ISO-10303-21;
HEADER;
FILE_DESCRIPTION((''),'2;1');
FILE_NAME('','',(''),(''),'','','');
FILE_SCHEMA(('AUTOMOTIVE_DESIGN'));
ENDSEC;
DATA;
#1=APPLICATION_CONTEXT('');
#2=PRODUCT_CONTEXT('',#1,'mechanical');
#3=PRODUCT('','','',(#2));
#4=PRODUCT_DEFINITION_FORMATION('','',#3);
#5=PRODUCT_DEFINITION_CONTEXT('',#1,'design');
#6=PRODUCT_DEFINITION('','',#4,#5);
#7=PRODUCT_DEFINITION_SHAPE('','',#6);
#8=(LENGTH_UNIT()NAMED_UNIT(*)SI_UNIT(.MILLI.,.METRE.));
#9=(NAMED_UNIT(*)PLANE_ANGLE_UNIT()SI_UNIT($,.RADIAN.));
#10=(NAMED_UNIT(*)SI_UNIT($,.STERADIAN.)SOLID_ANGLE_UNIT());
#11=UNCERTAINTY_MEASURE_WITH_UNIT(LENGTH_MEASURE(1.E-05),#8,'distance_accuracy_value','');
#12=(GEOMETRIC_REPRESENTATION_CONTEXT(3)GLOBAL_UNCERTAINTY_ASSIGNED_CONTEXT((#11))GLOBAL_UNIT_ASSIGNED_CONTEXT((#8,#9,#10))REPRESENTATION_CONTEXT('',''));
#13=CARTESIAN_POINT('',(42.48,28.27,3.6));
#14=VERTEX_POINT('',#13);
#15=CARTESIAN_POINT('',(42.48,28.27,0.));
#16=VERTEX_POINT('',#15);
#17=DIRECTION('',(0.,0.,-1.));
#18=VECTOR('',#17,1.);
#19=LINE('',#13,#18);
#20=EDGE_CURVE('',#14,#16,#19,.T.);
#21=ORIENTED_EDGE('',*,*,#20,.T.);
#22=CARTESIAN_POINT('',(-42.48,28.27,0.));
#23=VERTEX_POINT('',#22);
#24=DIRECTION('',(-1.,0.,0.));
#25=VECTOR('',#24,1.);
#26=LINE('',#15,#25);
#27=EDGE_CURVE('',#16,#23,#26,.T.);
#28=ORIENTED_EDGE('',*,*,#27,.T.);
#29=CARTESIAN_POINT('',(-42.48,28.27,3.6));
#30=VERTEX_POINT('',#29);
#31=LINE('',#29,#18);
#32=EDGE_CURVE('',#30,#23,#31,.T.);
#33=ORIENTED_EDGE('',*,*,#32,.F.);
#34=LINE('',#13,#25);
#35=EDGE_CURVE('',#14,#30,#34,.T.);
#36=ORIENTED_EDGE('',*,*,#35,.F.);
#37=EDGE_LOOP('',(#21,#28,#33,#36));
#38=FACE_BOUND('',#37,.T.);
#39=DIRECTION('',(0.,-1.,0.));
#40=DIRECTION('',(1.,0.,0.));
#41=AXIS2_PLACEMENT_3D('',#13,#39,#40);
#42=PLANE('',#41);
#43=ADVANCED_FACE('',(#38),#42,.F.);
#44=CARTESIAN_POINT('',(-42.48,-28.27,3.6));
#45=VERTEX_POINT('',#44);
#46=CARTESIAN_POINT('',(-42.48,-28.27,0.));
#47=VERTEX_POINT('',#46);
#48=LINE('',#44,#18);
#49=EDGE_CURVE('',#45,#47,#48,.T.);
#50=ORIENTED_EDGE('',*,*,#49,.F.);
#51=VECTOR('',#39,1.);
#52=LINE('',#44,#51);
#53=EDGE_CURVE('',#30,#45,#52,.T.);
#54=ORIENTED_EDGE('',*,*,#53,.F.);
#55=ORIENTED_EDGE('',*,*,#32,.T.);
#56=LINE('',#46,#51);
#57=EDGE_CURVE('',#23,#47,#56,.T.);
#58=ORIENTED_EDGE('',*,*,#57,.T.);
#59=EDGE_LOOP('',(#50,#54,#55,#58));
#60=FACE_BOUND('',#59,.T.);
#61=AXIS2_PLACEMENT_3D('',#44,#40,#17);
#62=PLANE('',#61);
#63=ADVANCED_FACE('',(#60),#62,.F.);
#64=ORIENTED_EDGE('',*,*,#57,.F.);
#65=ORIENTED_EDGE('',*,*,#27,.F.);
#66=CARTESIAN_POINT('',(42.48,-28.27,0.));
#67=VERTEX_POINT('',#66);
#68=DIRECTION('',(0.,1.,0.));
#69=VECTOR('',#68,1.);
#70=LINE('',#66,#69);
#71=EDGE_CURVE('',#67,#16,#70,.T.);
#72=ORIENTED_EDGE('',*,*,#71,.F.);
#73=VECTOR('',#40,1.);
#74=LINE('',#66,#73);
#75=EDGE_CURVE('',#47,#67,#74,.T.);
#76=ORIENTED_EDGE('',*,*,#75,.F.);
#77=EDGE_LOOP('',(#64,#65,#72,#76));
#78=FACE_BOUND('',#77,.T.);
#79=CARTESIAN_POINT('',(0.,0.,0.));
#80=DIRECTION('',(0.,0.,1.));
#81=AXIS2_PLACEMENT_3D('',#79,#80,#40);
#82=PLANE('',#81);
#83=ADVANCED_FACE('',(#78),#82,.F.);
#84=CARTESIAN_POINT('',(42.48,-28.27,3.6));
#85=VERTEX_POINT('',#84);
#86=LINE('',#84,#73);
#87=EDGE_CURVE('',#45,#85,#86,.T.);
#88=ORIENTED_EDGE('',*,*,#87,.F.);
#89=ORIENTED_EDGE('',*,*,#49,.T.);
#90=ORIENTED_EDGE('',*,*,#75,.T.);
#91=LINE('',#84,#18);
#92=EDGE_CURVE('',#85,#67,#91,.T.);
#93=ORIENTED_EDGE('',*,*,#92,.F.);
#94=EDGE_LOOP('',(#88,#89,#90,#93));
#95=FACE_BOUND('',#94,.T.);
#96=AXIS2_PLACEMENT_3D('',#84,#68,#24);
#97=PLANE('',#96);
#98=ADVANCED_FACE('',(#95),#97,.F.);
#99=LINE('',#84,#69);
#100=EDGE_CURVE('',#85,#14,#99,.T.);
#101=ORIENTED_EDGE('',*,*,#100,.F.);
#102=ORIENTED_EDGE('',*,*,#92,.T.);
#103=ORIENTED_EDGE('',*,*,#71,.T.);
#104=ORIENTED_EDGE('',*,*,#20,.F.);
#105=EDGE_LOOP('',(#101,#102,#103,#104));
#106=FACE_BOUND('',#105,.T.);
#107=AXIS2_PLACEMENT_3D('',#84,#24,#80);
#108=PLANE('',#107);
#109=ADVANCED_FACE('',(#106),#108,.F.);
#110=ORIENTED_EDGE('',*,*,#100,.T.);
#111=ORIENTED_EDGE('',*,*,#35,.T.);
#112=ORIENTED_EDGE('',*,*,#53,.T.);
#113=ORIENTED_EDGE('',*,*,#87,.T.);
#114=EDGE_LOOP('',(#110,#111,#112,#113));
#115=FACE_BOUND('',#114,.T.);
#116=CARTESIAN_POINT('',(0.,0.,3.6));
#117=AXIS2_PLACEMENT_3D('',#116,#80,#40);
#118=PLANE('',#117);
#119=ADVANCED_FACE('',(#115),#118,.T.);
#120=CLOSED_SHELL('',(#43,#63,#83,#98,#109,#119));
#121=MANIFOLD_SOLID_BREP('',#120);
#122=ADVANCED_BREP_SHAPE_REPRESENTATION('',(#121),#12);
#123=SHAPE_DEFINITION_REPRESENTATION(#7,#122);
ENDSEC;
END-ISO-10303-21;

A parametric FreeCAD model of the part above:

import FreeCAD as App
import Part
import Sketcher
from FreeCAD import Vector

doc = App.newDocument("Part")
params = doc.addObject("Spreadsheet::Sheet", "Params")
for row, (alias, value) in enumerate([
    ("sketch1_width", "84.96 mm"),
    ("sketch1_height", "56.54 mm"),
    ("pad1_length", "3.6 mm"),
], start=1):
    params.set(f"A{row}", alias)
    params.set(f"B{row}", "=" + value)
    params.setAlias(f"B{row}", alias)

body = doc.addObject("PartDesign::Body", "Body")

sketch1 = body.newObject("Sketcher::SketchObject", "Sketch")
sketch1.AttachmentSupport = (doc.getObject("XY_Plane"), [""])
sketch1.MapMode = "FlatFace"
sketch1.addGeometry([
    Part.LineSegment(Vector(-42.48, 28.27, 0), Vector(-42.48, -28.27, 0)),
    Part.LineSegment(Vector(-42.48, -28.27, 0), Vector(42.48, -28.27, 0)),
    Part.LineSegment(Vector(42.48, -28.27, 0), Vector(42.48, 28.27, 0)),
    Part.LineSegment(Vector(42.48, 28.27, 0), Vector(-42.48, 28.27, 0)),
], False)
sketch1.addConstraint([
    Sketcher.Constraint("Coincident", 0, 2, 1, 1),
    Sketcher.Constraint("Coincident", 1, 2, 2, 1),
    Sketcher.Constraint("Coincident", 2, 2, 3, 1),
    Sketcher.Constraint("Coincident", 3, 2, 0, 1),
    Sketcher.Constraint("Vertical", 0),
    Sketcher.Constraint("Horizontal", 1),
    Sketcher.Constraint("Vertical", 2),
    Sketcher.Constraint("Horizontal", 3),
    Sketcher.Constraint("Symmetric", 0, 2, 2, 2, -1, 1),
    Sketcher.Constraint("DistanceX", 1, 1, 1, 2, 84.96),
    Sketcher.Constraint("DistanceY", 0, 2, 0, 1, 56.54),
])
sketch1.setExpression("Constraints[9]", "Params.sketch1_width")
sketch1.setExpression("Constraints[10]", "Params.sketch1_height")
pad1 = body.newObject("PartDesign::Pad", "Pad")
pad1.Profile = sketch1
pad1.setExpression("Length", "Params.pad1_length")

doc.recompute()
